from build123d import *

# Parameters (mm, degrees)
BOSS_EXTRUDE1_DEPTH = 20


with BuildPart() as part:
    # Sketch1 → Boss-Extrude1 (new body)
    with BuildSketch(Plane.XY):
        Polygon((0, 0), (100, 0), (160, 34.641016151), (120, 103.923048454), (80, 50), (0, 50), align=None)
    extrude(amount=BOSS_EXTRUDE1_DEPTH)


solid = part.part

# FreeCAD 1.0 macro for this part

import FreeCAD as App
import Part
import Sketcher

V = App.Vector
Q = App.Units.Quantity

doc = App.newDocument("Part")
body = doc.addObject("PartDesign::Body", "Body")

# Sketch on XY plane
sketch1 = body.newObject("Sketcher::SketchObject", "Sketch")
sketch1.AttachmentSupport = (doc.getObject("XY_Plane"), [""])
sketch1.MapMode = "FlatFace"
sketch1.addGeometry(Part.LineSegment(V(0, 0, 0), V(100, 0, 0)), False)
sketch1.addGeometry(Part.LineSegment(V(100, 0, 0), V(160, 34.641016, 0)), False)
sketch1.addGeometry(Part.LineSegment(V(160, 34.641016, 0), V(120, 103.923048, 0)), False)
sketch1.addGeometry(Part.LineSegment(V(120, 103.923048, 0), V(80, 50, 0)), False)
sketch1.addGeometry(Part.LineSegment(V(80, 50, 0), V(0, 50, 0)), False)
sketch1.addGeometry(Part.LineSegment(V(0, 50, 0), V(0, 0, 0)), False)
sketch1.addConstraint(Sketcher.Constraint("Coincident", 0, 2, 1, 1))
sketch1.addConstraint(Sketcher.Constraint("Coincident", 1, 2, 2, 1))
sketch1.addConstraint(Sketcher.Constraint("Coincident", 2, 2, 3, 1))
sketch1.addConstraint(Sketcher.Constraint("Coincident", 3, 2, 4, 1))
sketch1.addConstraint(Sketcher.Constraint("Coincident", 4, 2, 5, 1))
sketch1.addConstraint(Sketcher.Constraint("Coincident", 5, 2, 0, 1))
sketch1.addConstraint(Sketcher.Constraint("Horizontal", 0))
sketch1.addConstraint(Sketcher.Constraint("Horizontal", 4))
sketch1.addConstraint(Sketcher.Constraint("Vertical", 5))
sketch1.addConstraint(Sketcher.Constraint("Coincident", 5, 2, -1, 1))
sketch1.addConstraint(Sketcher.Constraint("Perpendicular", 1, 2))
sketch1.addConstraint(Sketcher.Constraint("DistanceX", 0, 1, 0, 2, 100.0))
sketch1.addConstraint(Sketcher.Constraint("DistanceX", 4, 2, 4, 1, 80.0))
sketch1.addConstraint(Sketcher.Constraint("DistanceY", 5, 2, 5, 1, 50.0))
sketch1.addConstraint(Sketcher.Constraint("Angle", 1, Q("30 deg")))
sketch1.addConstraint(Sketcher.Constraint("Distance", 2, 80.0))
sketch1.addConstraint(Sketcher.Constraint("DistanceX", -1, 1, 1, 2, 160.0))
pad1 = body.newObject("PartDesign::Pad", "Pad")
pad1.Profile = sketch1
pad1.Length = 20

doc.recompute()
